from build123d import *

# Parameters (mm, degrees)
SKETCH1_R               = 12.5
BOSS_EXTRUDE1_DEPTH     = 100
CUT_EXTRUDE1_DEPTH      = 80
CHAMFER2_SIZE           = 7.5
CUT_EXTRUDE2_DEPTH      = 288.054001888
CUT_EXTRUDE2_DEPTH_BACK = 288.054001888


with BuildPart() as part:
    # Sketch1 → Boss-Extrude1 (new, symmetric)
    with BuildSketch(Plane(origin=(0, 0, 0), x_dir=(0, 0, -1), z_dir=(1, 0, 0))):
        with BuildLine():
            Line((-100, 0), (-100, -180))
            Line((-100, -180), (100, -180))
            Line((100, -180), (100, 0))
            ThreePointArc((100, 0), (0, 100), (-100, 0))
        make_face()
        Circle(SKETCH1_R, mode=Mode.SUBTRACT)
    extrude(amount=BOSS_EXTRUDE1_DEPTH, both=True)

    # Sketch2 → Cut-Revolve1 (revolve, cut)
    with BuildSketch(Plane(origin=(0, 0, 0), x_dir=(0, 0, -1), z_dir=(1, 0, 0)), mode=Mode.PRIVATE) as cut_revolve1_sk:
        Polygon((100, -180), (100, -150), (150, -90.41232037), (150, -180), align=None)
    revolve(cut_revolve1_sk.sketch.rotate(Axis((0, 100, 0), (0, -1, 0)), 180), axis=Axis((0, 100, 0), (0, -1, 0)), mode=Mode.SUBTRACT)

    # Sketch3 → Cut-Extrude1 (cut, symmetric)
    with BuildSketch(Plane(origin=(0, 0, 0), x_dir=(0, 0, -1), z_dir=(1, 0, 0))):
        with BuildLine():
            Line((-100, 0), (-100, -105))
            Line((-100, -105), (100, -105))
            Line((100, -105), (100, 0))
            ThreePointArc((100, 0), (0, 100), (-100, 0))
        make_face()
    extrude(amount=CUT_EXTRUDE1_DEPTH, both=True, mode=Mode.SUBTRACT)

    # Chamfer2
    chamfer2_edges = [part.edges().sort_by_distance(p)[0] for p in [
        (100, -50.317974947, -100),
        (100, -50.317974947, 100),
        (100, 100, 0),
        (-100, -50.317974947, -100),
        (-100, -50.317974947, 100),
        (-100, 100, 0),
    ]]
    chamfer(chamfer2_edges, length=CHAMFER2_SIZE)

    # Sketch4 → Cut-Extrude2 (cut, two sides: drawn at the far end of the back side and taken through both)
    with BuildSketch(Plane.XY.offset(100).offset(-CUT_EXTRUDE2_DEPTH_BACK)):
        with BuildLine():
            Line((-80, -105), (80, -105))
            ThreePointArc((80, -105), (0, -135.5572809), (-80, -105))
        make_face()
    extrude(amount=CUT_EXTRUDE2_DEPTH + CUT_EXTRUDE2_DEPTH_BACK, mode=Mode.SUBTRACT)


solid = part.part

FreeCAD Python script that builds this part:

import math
import FreeCAD as App
import Part
import Sketcher

V = App.Vector
Q = App.Units.Quantity


def edges_at(feature, points):
    """Names of the edges that pass closest to the given points."""
    edges = feature.Shape.Edges
    near = lambda p: min(range(len(edges)), key=lambda i: edges[i].distToShape(Part.Vertex(*p))[0])
    return sorted({f"Edge{near(p) + 1}" for p in points})

doc = App.newDocument("Part")
body = doc.addObject("PartDesign::Body", "Body")

# Sketch on YZ plane
sketch1 = body.newObject("Sketcher::SketchObject", "Sketch")
sketch1.AttachmentSupport = (doc.getObject("YZ_Plane"), [""])
sketch1.MapMode = "FlatFace"
sketch1.addGeometry([
    Part.LineSegment(V(0, 100, 0), V(-180, 100, 0)),  # 0
    Part.LineSegment(V(-180, 100, 0), V(-180, -100, 0)),  # 1
    Part.LineSegment(V(-180, -100, 0), V(0, -100, 0)),  # 2
    Part.ArcOfCircle(Part.Circle(V(0, 0, 0), V(0, 0, 1), 100), math.radians(-90), math.radians(90)),  # 3
    Part.Circle(V(0, 0, 0), V(0, 0, 1), 12),  # 4
], False)
sketch1.addConstraint([
    Sketcher.Constraint("Coincident", 0, 2, 1, 1),
    Sketcher.Constraint("Coincident", 1, 2, 2, 1),
    Sketcher.Constraint("Tangent", 2, 2, 3, 1),
    Sketcher.Constraint("Tangent", 3, 2, 0, 1),
    Sketcher.Constraint("Horizontal", 0),
    Sketcher.Constraint("Vertical", 1),
    Sketcher.Constraint("Horizontal", 2),
    Sketcher.Constraint("Coincident", 3, 3, -1, 1),
    Sketcher.Constraint("Coincident", 4, 3, -1, 1),
    Sketcher.Constraint("Diameter", 4, 25.0),
    Sketcher.Constraint("Radius", 3, 100.0),
    Sketcher.Constraint("DistanceX", 0, 2, 0, 1, 180.0),
])
pad1 = body.newObject("PartDesign::Pad", "Pad")
pad1.Profile = sketch1
pad1.Length = 200
pad1.Midplane = True

# Sketch on YZ plane
sketch2 = body.newObject("Sketcher::SketchObject", "Sketch001")
sketch2.AttachmentSupport = (doc.getObject("YZ_Plane"), [""])
sketch2.MapMode = "FlatFace"
sketch2.addGeometry([
    Part.LineSegment(V(-150, -100, 0), V(-180, -100, 0)),
    Part.LineSegment(V(-180, -100, 0), V(-180, -150, 0)),
    Part.LineSegment(V(-180, -150, 0), V(-90, -150, 0)),
    Part.LineSegment(V(-90, -150, 0), V(-150, -100, 0)),
], False)
sketch2.addConstraint([
    Sketcher.Constraint("Coincident", 0, 2, 1, 1),
    Sketcher.Constraint("Coincident", 1, 2, 2, 1),
    Sketcher.Constraint("Coincident", 2, 2, 3, 1),
    Sketcher.Constraint("Coincident", 3, 2, 0, 1),
    Sketcher.Constraint("Horizontal", 0),
    Sketcher.Constraint("Vertical", 1),
    Sketcher.Constraint("Horizontal", 2),
    Sketcher.Constraint("DistanceX", 0, 2, 0, 1, 30.0),
    Sketcher.Constraint("DistanceY", 1, 2, 1, 1, 50.0),
    Sketcher.Constraint("Angle", 3, Q("140 deg")),
    Sketcher.Constraint("DistanceX", 0, 2, -1, 1, 180.0),
    Sketcher.Constraint("DistanceY", 0, 2, -1, 1, 100.0),
])
groove = body.newObject("PartDesign::Groove", "Groove")
groove.Profile = sketch2
groove.ReferenceAxis = (sketch2, ["H_Axis"])
groove.Angle = 360

# Sketch on YZ plane
sketch3 = body.newObject("Sketcher::SketchObject", "Sketch002")
sketch3.AttachmentSupport = (doc.getObject("YZ_Plane"), [""])
sketch3.MapMode = "FlatFace"
sketch3.addGeometry([
    Part.LineSegment(V(0, 100, 0), V(-105, 100, 0)),
    Part.LineSegment(V(-105, 100, 0), V(-105, -100, 0)),
    Part.LineSegment(V(-105, -100, 0), V(0, -100, 0)),
    Part.ArcOfCircle(Part.Circle(V(0, 0, 0), V(0, 0, 1), 100), math.radians(-90), math.radians(90)),
], False)
sketch3.addConstraint([
    Sketcher.Constraint("Coincident", 0, 2, 1, 1),
    Sketcher.Constraint("Coincident", 1, 2, 2, 1),
    Sketcher.Constraint("Tangent", 2, 2, 3, 1),
    Sketcher.Constraint("Tangent", 3, 2, 0, 1),
    Sketcher.Constraint("Horizontal", 0),
    Sketcher.Constraint("Vertical", 1),
    Sketcher.Constraint("Horizontal", 2),
    Sketcher.Constraint("Coincident", 3, 3, -1, 1),
    Sketcher.Constraint("Radius", 3, 100.0),
    Sketcher.Constraint("DistanceX", 0, 2, 0, 1, 105.0),
])
pocket1 = body.newObject("PartDesign::Pocket", "Pocket")
pocket1.Profile = sketch3
pocket1.Length = 160
pocket1.Midplane = True
doc.recompute()

chamfer = body.newObject("PartDesign::Chamfer", "Chamfer")
chamfer.Base = (pocket1, edges_at(pocket1, [
    (100, -50.318, -100),
    (100, -50.318, 100),
    (100, 100, 0),
    (-100, -50.318, -100),
    (-100, -50.318, 100),
    (-100, 100, 0),
]))
chamfer.Size = 7.5

# Sketch on XY plane
sketch4 = body.newObject("Sketcher::SketchObject", "Sketch003")
sketch4.AttachmentSupport = (doc.getObject("XY_Plane"), [""])
sketch4.MapMode = "FlatFace"
sketch4.AttachmentOffset = App.Placement(V(0, 0, 100), App.Rotation())
sketch4.addGeometry([
    Part.LineSegment(V(80, -105, 0), V(-80, -105, 0)),
    Part.ArcOfCircle(Part.Circle(V(0, -16, 0), V(0, 0, 1), 120), math.radians(-132), math.radians(-48)),
], False)
sketch4.addConstraint([
    Sketcher.Constraint("Coincident", 0, 1, 1, 2),
    Sketcher.Constraint("Coincident", 1, 1, 0, 2),
    Sketcher.Constraint("Horizontal", 0),
    Sketcher.Constraint("PointOnObject", 1, 3, -2),
    Sketcher.Constraint("Radius", 1, 120.0),
    Sketcher.Constraint("DistanceX", 0, 2, 0, 1, 160.0),
    Sketcher.Constraint("DistanceY", 0, 1, -1, 1, 105.0),
])
pocket2 = body.newObject("PartDesign::Pocket", "Pocket001")
pocket2.Profile = sketch4
pocket2.Type = "ThroughAll"
pocket2.Midplane = True

doc.recompute()
